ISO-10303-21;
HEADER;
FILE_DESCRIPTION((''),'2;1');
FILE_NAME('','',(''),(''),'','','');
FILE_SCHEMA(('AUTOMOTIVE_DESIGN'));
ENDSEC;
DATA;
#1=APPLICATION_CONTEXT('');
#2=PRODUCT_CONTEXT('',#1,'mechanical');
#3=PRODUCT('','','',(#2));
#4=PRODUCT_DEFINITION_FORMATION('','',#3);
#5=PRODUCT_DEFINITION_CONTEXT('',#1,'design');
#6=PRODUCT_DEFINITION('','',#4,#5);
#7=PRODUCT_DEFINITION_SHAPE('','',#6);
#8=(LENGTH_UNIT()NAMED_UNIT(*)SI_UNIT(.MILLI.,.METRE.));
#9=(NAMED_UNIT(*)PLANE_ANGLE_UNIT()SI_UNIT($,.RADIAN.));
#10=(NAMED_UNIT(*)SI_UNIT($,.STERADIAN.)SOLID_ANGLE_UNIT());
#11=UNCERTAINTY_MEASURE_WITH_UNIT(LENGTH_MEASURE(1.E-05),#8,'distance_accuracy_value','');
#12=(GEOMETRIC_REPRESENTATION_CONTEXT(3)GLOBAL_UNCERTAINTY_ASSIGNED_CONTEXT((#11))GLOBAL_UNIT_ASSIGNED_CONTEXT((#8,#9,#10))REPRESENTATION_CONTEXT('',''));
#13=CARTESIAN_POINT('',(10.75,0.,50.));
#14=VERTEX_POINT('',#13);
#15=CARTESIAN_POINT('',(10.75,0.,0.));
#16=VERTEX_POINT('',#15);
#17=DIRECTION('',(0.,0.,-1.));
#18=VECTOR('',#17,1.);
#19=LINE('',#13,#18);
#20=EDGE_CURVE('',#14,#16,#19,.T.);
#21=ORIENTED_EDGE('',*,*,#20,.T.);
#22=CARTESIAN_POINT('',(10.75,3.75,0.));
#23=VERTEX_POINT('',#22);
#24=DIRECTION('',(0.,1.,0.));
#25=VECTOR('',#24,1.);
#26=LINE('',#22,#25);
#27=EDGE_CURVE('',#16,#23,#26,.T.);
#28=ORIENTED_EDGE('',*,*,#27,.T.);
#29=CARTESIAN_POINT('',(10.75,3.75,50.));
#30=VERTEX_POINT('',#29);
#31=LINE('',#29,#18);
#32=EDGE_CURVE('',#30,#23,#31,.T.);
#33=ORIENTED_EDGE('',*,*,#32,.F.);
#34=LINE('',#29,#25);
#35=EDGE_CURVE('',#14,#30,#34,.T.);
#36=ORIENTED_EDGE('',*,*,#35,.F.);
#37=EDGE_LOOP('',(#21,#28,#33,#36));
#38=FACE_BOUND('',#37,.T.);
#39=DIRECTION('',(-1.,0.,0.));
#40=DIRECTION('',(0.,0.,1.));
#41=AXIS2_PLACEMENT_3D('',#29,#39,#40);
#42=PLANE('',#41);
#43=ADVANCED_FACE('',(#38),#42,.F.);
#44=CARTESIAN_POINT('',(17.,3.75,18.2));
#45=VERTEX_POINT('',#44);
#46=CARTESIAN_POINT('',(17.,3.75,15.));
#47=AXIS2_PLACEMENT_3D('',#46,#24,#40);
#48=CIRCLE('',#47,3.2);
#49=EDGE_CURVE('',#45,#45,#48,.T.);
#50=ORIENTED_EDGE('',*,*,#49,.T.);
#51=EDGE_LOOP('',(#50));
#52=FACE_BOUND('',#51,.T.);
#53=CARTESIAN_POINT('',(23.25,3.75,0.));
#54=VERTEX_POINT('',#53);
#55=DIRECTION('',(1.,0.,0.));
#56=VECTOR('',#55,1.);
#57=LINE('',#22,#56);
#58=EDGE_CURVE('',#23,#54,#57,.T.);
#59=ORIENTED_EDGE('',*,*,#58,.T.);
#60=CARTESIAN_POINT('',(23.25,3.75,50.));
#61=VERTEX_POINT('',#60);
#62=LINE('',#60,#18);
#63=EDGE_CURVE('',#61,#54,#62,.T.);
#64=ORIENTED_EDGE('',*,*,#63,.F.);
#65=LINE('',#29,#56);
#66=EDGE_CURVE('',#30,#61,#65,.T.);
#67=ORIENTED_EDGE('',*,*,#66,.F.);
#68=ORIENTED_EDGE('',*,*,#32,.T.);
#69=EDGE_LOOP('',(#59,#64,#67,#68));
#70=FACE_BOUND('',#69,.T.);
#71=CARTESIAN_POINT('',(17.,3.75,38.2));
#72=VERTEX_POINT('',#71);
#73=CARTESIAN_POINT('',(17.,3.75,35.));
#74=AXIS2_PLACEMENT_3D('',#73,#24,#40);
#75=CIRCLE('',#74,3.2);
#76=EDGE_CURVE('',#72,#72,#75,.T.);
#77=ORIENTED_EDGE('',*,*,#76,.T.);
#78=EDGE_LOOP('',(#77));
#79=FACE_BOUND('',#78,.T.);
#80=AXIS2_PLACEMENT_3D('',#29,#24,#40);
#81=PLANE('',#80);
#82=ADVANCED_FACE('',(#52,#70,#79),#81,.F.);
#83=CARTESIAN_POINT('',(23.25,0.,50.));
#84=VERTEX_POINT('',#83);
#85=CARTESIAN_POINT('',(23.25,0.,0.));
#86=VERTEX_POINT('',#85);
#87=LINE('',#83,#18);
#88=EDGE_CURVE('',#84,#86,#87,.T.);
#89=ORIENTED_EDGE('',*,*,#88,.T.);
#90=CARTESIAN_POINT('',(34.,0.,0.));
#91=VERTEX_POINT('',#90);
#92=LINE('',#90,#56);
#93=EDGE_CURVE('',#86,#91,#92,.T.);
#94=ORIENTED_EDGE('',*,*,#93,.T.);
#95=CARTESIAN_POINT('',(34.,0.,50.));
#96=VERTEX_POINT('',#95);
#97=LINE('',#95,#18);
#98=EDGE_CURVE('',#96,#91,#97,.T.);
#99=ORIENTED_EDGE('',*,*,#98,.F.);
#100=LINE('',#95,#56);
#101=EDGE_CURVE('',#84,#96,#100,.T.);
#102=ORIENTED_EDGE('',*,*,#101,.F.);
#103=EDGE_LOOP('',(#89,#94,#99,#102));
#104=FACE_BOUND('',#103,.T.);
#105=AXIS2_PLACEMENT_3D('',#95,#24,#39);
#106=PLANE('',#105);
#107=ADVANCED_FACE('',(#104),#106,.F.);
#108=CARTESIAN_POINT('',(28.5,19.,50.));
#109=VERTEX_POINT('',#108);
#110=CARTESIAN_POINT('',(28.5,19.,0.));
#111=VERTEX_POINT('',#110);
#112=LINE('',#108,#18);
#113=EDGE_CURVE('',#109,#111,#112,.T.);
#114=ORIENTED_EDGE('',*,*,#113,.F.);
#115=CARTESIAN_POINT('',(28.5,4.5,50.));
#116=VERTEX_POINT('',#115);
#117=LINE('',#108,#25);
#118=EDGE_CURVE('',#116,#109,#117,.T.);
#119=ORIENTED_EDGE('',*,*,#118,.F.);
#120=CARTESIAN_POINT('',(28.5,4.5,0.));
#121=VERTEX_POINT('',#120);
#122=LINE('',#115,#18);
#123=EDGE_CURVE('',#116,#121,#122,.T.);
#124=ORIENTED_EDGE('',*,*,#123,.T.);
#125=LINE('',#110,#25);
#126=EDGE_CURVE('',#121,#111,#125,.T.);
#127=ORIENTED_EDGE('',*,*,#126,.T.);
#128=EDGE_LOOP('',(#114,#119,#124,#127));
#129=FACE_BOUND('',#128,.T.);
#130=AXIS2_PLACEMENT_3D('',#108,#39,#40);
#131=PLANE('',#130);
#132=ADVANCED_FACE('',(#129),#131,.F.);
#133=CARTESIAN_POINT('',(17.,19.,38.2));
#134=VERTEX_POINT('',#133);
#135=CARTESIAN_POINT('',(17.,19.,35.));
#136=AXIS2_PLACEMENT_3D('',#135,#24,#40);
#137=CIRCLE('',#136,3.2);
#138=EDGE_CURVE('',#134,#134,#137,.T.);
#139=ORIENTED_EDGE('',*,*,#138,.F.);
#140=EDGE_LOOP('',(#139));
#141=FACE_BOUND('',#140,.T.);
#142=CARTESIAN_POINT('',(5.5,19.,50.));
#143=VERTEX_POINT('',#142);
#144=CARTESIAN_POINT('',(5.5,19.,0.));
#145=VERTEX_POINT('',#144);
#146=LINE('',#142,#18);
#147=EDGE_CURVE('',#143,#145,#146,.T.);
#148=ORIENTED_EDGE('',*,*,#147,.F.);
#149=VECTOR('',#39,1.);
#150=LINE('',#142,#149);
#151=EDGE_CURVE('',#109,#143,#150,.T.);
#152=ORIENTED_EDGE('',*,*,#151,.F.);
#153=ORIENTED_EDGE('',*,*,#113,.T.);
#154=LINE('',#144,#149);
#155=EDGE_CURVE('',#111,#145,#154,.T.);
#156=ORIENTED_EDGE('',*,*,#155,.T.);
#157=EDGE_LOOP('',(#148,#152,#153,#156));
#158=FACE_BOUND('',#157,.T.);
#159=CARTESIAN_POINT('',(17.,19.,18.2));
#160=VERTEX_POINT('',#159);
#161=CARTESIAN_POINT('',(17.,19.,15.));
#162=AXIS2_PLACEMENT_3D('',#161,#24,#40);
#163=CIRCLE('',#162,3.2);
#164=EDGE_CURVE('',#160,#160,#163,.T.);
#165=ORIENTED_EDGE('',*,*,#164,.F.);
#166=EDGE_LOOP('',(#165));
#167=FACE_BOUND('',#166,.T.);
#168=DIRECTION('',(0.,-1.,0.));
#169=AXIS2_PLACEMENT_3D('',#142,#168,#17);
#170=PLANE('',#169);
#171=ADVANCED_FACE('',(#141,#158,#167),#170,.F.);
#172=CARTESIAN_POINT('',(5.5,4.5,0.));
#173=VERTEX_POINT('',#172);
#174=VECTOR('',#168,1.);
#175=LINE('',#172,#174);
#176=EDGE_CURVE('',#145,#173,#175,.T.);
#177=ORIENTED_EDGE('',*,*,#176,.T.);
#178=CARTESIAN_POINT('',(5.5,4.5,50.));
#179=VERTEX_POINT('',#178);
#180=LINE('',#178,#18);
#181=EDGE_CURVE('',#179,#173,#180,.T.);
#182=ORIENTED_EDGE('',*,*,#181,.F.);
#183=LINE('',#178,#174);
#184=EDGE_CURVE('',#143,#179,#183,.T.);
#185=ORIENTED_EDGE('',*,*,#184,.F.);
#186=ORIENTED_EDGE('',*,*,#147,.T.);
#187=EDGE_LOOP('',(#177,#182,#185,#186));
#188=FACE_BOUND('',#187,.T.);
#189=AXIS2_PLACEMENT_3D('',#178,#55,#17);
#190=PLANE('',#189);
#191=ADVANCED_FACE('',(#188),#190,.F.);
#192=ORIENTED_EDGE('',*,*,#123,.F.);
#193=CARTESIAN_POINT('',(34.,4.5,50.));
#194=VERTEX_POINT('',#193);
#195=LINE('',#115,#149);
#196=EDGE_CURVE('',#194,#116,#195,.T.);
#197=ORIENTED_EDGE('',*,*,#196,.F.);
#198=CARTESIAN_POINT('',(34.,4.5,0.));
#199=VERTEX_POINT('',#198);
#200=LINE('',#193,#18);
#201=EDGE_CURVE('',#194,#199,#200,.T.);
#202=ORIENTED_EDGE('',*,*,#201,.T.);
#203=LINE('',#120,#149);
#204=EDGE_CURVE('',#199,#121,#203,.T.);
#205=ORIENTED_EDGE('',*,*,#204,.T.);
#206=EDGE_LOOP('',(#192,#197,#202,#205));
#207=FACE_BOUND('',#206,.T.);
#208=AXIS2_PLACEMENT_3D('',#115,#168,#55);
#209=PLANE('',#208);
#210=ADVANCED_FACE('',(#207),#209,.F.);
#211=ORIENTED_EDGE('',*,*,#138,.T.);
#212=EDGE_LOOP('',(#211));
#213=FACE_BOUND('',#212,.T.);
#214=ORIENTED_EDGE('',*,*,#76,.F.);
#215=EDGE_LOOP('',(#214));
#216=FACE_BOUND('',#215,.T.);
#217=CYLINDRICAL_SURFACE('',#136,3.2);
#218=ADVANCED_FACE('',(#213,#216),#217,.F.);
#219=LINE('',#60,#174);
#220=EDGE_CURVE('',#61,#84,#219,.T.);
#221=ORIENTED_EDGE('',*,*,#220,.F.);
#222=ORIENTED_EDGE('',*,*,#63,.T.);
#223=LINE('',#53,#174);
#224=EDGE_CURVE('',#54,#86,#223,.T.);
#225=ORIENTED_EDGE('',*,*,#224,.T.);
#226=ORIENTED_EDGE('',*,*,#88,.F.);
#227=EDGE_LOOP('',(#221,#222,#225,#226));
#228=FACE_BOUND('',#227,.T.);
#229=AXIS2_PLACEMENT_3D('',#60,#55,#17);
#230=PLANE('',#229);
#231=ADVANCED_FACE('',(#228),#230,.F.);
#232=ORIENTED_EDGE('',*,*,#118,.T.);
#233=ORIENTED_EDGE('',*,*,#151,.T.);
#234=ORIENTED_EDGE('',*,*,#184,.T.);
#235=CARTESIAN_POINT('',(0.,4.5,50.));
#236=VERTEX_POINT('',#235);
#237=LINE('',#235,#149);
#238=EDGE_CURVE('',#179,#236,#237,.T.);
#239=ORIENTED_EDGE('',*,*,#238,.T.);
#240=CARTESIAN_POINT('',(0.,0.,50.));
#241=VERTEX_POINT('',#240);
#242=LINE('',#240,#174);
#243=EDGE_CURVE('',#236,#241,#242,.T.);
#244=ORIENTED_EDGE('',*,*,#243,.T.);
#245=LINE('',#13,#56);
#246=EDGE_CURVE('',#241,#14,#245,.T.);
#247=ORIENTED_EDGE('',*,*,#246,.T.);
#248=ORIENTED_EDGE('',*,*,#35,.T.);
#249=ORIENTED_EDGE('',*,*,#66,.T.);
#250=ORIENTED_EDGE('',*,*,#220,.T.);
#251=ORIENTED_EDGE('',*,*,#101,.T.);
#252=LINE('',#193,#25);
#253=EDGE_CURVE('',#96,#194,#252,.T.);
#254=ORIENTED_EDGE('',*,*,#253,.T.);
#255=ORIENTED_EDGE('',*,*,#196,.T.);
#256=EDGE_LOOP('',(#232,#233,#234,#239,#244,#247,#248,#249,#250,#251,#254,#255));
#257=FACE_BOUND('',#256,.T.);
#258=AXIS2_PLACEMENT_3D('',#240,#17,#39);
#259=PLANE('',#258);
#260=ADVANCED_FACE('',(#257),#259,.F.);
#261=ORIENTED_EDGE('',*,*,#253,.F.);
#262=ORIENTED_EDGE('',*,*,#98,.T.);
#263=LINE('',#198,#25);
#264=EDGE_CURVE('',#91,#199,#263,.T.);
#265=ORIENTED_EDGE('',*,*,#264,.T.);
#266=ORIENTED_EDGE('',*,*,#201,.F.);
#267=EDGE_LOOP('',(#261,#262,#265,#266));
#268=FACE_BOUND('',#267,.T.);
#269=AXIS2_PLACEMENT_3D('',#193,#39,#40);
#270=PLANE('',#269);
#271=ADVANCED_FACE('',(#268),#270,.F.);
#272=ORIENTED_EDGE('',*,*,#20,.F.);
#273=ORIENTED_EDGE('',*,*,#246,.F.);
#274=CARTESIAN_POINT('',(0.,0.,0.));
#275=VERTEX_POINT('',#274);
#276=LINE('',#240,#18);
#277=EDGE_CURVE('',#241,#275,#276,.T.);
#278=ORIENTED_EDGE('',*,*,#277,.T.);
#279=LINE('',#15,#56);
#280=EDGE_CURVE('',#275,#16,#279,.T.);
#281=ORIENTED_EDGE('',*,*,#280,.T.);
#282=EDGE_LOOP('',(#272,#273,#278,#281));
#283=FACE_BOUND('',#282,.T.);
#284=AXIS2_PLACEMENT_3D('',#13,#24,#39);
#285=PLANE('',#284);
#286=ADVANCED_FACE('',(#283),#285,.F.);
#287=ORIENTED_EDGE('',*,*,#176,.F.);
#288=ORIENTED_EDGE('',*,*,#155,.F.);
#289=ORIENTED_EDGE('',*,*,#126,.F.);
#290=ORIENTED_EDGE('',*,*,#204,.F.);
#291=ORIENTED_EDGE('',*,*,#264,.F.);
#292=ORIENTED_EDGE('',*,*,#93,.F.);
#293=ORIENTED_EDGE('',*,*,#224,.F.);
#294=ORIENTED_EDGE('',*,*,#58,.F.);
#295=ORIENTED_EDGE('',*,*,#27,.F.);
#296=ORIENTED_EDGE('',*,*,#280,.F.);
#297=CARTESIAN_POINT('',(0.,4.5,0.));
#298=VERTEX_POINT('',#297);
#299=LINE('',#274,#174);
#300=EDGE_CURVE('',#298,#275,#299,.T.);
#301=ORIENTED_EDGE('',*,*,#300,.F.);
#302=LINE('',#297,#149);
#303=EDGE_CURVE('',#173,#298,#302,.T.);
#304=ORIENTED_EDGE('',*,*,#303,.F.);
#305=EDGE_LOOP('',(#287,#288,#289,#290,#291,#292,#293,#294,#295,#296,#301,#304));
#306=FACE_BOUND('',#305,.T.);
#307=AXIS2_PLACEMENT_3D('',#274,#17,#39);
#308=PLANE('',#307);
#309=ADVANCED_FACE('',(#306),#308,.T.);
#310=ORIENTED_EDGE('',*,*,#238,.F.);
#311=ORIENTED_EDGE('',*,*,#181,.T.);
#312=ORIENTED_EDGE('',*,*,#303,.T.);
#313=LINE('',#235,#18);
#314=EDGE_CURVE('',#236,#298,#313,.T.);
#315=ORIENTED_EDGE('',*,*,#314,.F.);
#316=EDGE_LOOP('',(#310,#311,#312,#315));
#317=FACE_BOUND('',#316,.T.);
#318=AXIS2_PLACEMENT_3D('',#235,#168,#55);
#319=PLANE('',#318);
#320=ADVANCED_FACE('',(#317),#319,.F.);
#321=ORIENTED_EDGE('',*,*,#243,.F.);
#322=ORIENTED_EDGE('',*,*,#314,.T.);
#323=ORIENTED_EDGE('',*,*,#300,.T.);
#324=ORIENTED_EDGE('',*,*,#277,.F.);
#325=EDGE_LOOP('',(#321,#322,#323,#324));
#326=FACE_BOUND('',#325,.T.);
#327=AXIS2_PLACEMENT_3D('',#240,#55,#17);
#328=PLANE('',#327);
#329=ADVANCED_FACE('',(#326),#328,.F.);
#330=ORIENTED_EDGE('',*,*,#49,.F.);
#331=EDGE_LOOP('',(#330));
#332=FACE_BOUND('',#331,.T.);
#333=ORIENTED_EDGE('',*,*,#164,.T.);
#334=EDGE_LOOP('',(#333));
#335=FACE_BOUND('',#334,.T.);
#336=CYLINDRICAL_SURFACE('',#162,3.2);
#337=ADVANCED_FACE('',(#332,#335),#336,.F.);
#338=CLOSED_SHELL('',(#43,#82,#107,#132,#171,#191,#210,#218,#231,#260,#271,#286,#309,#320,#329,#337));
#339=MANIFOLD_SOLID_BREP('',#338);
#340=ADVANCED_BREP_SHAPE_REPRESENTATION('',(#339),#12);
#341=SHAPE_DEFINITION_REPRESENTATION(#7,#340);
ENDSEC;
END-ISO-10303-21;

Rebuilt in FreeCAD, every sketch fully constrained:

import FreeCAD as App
import Part
import Sketcher


def add_polygon(sketch, points):
    """Adds a closed chain of lines whose ends are joined by coincident constraints."""
    first, n = sketch.GeometryCount, len(points)
    for a, b in zip(points, points[1:] + points[:1]):
        sketch.addGeometry(Part.LineSegment(App.Vector(*a, 0), App.Vector(*b, 0)), False)
    for i in range(n):
        sketch.addConstraint(Sketcher.Constraint("Coincident", first + i, 2, first + (i + 1) % n, 1))

doc = App.newDocument("Part")
body = doc.addObject("PartDesign::Body", "Body")

# Sketch on XY plane
sketch1 = doc.addObject("Sketcher::SketchObject", "Sketch")
body.addObject(sketch1)
sketch1.AttachmentSupport = (doc.XY_Plane, [""])
sketch1.MapMode = "FlatFace"
add_polygon(sketch1, [(0, 4.5), (0, 0), (10.75, 0), (10.75, 3.75), (23.25, 3.75), (23.25, 0), (34, 0), (34, 4.5), (28.5, 4.5), (28.5, 19), (5.5, 19), (5.5, 4.5)])  # lines 0-11
sketch1.addConstraint([
    Sketcher.Constraint("Vertical", 0),
    Sketcher.Constraint("Horizontal", 1),
    Sketcher.Constraint("Vertical", 2),
    Sketcher.Constraint("Horizontal", 3),
    Sketcher.Constraint("Vertical", 4),
    Sketcher.Constraint("Horizontal", 5),
    Sketcher.Constraint("Vertical", 6),
    Sketcher.Constraint("Horizontal", 7),
    Sketcher.Constraint("Vertical", 8),
    Sketcher.Constraint("Horizontal", 9),
    Sketcher.Constraint("Vertical", 10),
    Sketcher.Constraint("Horizontal", 11),
    Sketcher.Constraint("Coincident", 0, 2, -1, 1),
    Sketcher.Constraint("PointOnObject", 4, 2, -1),
    Sketcher.Constraint("Horizontal", 7, 2, 10, 2),
    Sketcher.Constraint("Equal", 1, 5),
    Sketcher.Constraint("Equal", 7, 11),
    Sketcher.Constraint("DistanceX", 9, 2, 9, 1, 23.0),
    Sketcher.Constraint("DistanceX", 3, 1, 3, 2, 12.5),
    Sketcher.Constraint("DistanceX", 7, 2, 7, 1, 5.5),
    Sketcher.Constraint("DistanceY", 0, 2, 0, 1, 4.5),
    Sketcher.Constraint("DistanceY", 8, 1, 8, 2, 14.5),
    Sketcher.Constraint("DistanceY", 2, 1, 2, 2, 3.75),
])
pad1 = doc.addObject("PartDesign::Pad", "Pad")
body.addObject(pad1)
pad1.Profile = sketch1
pad1.Length = 50

# Sketch on XZ plane
sketch2 = doc.addObject("Sketcher::SketchObject", "Sketch001")
body.addObject(sketch2)
sketch2.AttachmentSupport = (doc.XZ_Plane, [""])
sketch2.MapMode = "FlatFace"
sketch2.AttachmentOffset = App.Placement(App.Vector(0, 0, -19), App.Rotation())
sketch2.addGeometry([
    Part.Circle(App.Vector(17, 15, 0), App.Vector(0, 0, 1), 3.2),
    Part.Circle(App.Vector(17, 35, 0), App.Vector(0, 0, 1), 3.2),
], False)
sketch2.addConstraint([
    Sketcher.Constraint("Equal", 0, 1),
    Sketcher.Constraint("Vertical", 0, 3, 1, 3),
    Sketcher.Constraint("Diameter", 0, 6.4),
    Sketcher.Constraint("DistanceX", -1, 1, 0, 3, 17.0),
    Sketcher.Constraint("DistanceY", -1, 1, 0, 3, 15.0),
    Sketcher.Constraint("DistanceY", -1, 1, 1, 3, 35.0),
])
doc.recompute()
hole = doc.addObject("PartDesign::Hole", "Hole")
body.addObject(hole)
hole.Profile = sketch2
hole.ThreadType = "None"
hole.Diameter = 6.4
hole.DepthType = "ThroughAll"
hole.Reversed = True

doc.recompute()
